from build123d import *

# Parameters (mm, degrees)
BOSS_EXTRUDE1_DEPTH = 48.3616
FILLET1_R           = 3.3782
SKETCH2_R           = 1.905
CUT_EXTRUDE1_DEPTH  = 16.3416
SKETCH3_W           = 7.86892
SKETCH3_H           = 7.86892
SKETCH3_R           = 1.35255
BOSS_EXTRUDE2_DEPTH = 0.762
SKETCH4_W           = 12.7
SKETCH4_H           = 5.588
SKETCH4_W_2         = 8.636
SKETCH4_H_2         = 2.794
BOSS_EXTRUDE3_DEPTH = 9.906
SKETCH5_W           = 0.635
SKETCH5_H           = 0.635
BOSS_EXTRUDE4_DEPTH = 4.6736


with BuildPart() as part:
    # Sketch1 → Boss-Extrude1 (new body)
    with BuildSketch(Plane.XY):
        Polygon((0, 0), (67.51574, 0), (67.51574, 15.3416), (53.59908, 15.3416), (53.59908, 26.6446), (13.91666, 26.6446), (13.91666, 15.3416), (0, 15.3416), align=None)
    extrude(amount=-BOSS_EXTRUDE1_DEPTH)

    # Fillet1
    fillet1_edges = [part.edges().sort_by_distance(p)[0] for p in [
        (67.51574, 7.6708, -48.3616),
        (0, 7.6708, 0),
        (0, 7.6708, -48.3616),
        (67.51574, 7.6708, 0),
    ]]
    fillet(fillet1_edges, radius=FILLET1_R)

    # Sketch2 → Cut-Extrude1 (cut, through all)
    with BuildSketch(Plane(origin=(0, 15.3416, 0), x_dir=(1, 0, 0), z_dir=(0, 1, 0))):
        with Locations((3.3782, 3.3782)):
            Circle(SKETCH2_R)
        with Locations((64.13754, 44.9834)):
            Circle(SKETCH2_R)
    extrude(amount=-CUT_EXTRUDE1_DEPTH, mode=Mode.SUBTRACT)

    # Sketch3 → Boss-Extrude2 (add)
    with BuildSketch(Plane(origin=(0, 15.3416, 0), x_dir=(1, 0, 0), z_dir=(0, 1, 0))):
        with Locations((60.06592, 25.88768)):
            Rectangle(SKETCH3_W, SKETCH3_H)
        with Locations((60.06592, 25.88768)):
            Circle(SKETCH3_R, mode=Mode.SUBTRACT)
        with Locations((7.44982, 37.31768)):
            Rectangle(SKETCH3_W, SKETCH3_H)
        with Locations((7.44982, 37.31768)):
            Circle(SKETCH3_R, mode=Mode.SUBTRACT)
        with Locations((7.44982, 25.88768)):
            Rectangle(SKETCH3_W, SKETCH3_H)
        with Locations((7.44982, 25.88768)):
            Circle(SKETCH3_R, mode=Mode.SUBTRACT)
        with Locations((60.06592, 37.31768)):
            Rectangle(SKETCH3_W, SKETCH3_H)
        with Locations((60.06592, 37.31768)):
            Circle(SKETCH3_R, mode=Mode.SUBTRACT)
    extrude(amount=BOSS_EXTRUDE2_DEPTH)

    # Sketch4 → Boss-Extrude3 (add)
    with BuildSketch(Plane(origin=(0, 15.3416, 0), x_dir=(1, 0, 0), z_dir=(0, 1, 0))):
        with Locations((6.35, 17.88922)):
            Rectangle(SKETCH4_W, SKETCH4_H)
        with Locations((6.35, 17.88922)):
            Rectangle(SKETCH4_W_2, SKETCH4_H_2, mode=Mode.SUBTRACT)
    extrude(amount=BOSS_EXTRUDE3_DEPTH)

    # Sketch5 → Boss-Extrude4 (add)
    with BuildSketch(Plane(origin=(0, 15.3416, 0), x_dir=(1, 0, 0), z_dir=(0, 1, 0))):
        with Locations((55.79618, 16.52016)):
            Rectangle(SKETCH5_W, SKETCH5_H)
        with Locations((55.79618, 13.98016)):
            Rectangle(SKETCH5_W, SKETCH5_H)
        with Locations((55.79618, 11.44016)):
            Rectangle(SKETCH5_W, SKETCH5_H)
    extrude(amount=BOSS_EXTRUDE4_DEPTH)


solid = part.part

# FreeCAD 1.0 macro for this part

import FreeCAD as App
import Part
import Sketcher

V = App.Vector
Q = App.Units.Quantity


def edges_at(feature, points):
    """Names of the edges that pass closest to the given points."""
    edges = feature.Shape.Edges
    near = lambda p: min(range(len(edges)), key=lambda i: edges[i].distToShape(Part.Vertex(*p))[0])
    return sorted({f"Edge{near(p) + 1}" for p in points})

doc = App.newDocument("Part")
body = doc.addObject("PartDesign::Body", "Body")

# Sketch on XY plane
sketch1 = body.newObject("Sketcher::SketchObject", "Sketch")
sketch1.AttachmentSupport = (doc.getObject("XY_Plane"), [""])
sketch1.MapMode = "FlatFace"
sketch1.addGeometry([
    Part.LineSegment(V(0, 0, 0), V(68, 0, 0)),  # 0
    Part.LineSegment(V(68, 0, 0), V(68, 15, 0)),  # 1
    Part.LineSegment(V(68, 15, 0), V(54, 15, 0)),  # 2
    Part.LineSegment(V(54, 15, 0), V(54, 27, 0)),  # 3
    Part.LineSegment(V(54, 27, 0), V(14, 27, 0)),  # 4
    Part.LineSegment(V(14, 27, 0), V(14, 15, 0)),  # 5
    Part.LineSegment(V(14, 15, 0), V(0, 15, 0)),  # 6
    Part.LineSegment(V(0, 15, 0), V(0, 0, 0)),  # 7
], False)
sketch1.addConstraint([
    Sketcher.Constraint("Coincident", 0, 2, 1, 1),
    Sketcher.Constraint("Coincident", 1, 2, 2, 1),
    Sketcher.Constraint("Coincident", 2, 2, 3, 1),
    Sketcher.Constraint("Coincident", 3, 2, 4, 1),
    Sketcher.Constraint("Coincident", 4, 2, 5, 1),
    Sketcher.Constraint("Coincident", 5, 2, 6, 1),
    Sketcher.Constraint("Coincident", 6, 2, 7, 1),
    Sketcher.Constraint("Coincident", 7, 2, 0, 1),
    Sketcher.Constraint("Horizontal", 0),
    Sketcher.Constraint("Vertical", 1),
    Sketcher.Constraint("Horizontal", 2),
    Sketcher.Constraint("Vertical", 3),
    Sketcher.Constraint("Horizontal", 4),
    Sketcher.Constraint("Vertical", 5),
    Sketcher.Constraint("Horizontal", 6),
    Sketcher.Constraint("Vertical", 7),
    Sketcher.Constraint("Coincident", 7, 2, -1, 1),
    Sketcher.Constraint("Horizontal", 2, 2, 5, 2),
    Sketcher.Constraint("Equal", 2, 6),
    Sketcher.Constraint("DistanceY", 1, 1, 1, 2, Q("0.604 in")),
    Sketcher.Constraint("DistanceY", 3, 1, 3, 2, Q("0.445 in")),
    Sketcher.Constraint("DistanceX", 0, 1, 0, 2, Q("2.6581 in")),
    Sketcher.Constraint("DistanceX", 2, 2, 2, 1, Q("0.5479 in")),
])
pad1 = body.newObject("PartDesign::Pad", "Pad")
pad1.Profile = sketch1
pad1.Length = Q("1.904 in")
pad1.Reversed = True
doc.recompute()

fillet = body.newObject("PartDesign::Fillet", "Fillet")
fillet.Base = (pad1, edges_at(pad1, [
    (67.516, 7.671, -48.362),
    (0, 7.671, 0),
    (0, 7.671, -48.362),
    (67.516, 7.671, 0),
]))
fillet.Radius = Q("0.133 in")

# Sketch on XZ plane
sketch2 = body.newObject("Sketcher::SketchObject", "Sketch001")
sketch2.AttachmentSupport = (doc.getObject("XZ_Plane"), [""])
sketch2.MapMode = "FlatFace"
sketch2.AttachmentOffset = App.Placement(V(0, 0, -0.604 * 25.4), App.Rotation())
sketch2.addGeometry([
    Part.Circle(V(3.4, -3.4, 0), V(0, 0, 1), 1.9),
    Part.Circle(V(64.1, -45, 0), V(0, 0, 1), 1.9),
], False)
sketch2.addConstraint([
    Sketcher.Constraint("Equal", 0, 1),
    Sketcher.Constraint("Diameter", 0, Q("0.15 in")),
    Sketcher.Constraint("DistanceX", -1, 1, 0, 3, Q("0.133 in")),
    Sketcher.Constraint("DistanceY", 0, 3, -1, 1, Q("0.133 in")),
    Sketcher.Constraint("DistanceY", 1, 3, -1, 1, Q("1.771 in")),
    Sketcher.Constraint("DistanceX", -1, 1, 1, 3, Q("2.5251 in")),
])
pocket1 = body.newObject("PartDesign::Pocket", "Pocket")
pocket1.Profile = sketch2
pocket1.Type = "ThroughAll"
pocket1.Reversed = True

# Sketch on XZ plane
sketch3 = body.newObject("Sketcher::SketchObject", "Sketch002")
sketch3.AttachmentSupport = (doc.getObject("XZ_Plane"), [""])
sketch3.MapMode = "FlatFace"
sketch3.AttachmentOffset = App.Placement(V(0, 0, -0.604 * 25.4), App.Rotation())
sketch3.addGeometry([
    Part.LineSegment(V(56.1, -29.8, 0), V(56.1, -22, 0)),  # 0
    Part.LineSegment(V(56.1, -22, 0), V(64, -22, 0)),  # 1
    Part.LineSegment(V(64, -22, 0), V(64, -29.8, 0)),  # 2
    Part.LineSegment(V(64, -29.8, 0), V(56.1, -29.8, 0)),  # 3
    Part.Circle(V(60.1, -25.9, 0), V(0, 0, 1), 1.4),  # 4
    Part.LineSegment(V(3.5, -41.3, 0), V(3.5, -33.4, 0)),  # 5
    Part.LineSegment(V(3.5, -33.4, 0), V(11.4, -33.4, 0)),  # 6
    Part.LineSegment(V(11.4, -33.4, 0), V(11.4, -41.3, 0)),  # 7
    Part.LineSegment(V(11.4, -41.3, 0), V(3.5, -41.3, 0)),  # 8
    Part.Circle(V(7.4, -37.3, 0), V(0, 0, 1), 1.4),  # 9
    Part.LineSegment(V(3.5, -29.8, 0), V(3.5, -22, 0)),  # 10
    Part.LineSegment(V(3.5, -22, 0), V(11.4, -22, 0)),  # 11
    Part.LineSegment(V(11.4, -22, 0), V(11.4, -29.8, 0)),  # 12
    Part.LineSegment(V(11.4, -29.8, 0), V(3.5, -29.8, 0)),  # 13
    Part.Circle(V(7.4, -25.9, 0), V(0, 0, 1), 1.4),  # 14
    Part.LineSegment(V(56.1, -41.3, 0), V(56.1, -33.4, 0)),  # 15
    Part.LineSegment(V(56.1, -33.4, 0), V(64, -33.4, 0)),  # 16
    Part.LineSegment(V(64, -33.4, 0), V(64, -41.3, 0)),  # 17
    Part.LineSegment(V(64, -41.3, 0), V(56.1, -41.3, 0)),  # 18
    Part.Circle(V(60.1, -37.3, 0), V(0, 0, 1), 1.4),  # 19
], False)
sketch3.addConstraint([
    Sketcher.Constraint("Coincident", 0, 2, 1, 1),
    Sketcher.Constraint("Coincident", 1, 2, 2, 1),
    Sketcher.Constraint("Coincident", 2, 2, 3, 1),
    Sketcher.Constraint("Coincident", 3, 2, 0, 1),
    Sketcher.Constraint("Coincident", 5, 2, 6, 1),
    Sketcher.Constraint("Coincident", 6, 2, 7, 1),
    Sketcher.Constraint("Coincident", 7, 2, 8, 1),
    Sketcher.Constraint("Coincident", 8, 2, 5, 1),
    Sketcher.Constraint("Coincident", 10, 2, 11, 1),
    Sketcher.Constraint("Coincident", 11, 2, 12, 1),
    Sketcher.Constraint("Coincident", 12, 2, 13, 1),
    Sketcher.Constraint("Coincident", 13, 2, 10, 1),
    Sketcher.Constraint("Coincident", 15, 2, 16, 1),
    Sketcher.Constraint("Coincident", 16, 2, 17, 1),
    Sketcher.Constraint("Coincident", 17, 2, 18, 1),
    Sketcher.Constraint("Coincident", 18, 2, 15, 1),
    Sketcher.Constraint("Vertical", 0),
    Sketcher.Constraint("Horizontal", 1),
    Sketcher.Constraint("Vertical", 2),
    Sketcher.Constraint("Horizontal", 3),
    Sketcher.Constraint("Vertical", 5),
    Sketcher.Constraint("Horizontal", 6),
    Sketcher.Constraint("Vertical", 7),
    Sketcher.Constraint("Horizontal", 8),
    Sketcher.Constraint("Vertical", 10),
    Sketcher.Constraint("Horizontal", 11),
    Sketcher.Constraint("Vertical", 12),
    Sketcher.Constraint("Horizontal", 13),
    Sketcher.Constraint("Vertical", 15),
    Sketcher.Constraint("Horizontal", 16),
    Sketcher.Constraint("Vertical", 17),
    Sketcher.Constraint("Horizontal", 18),
    Sketcher.Constraint("Equal", 4, 9),
    Sketcher.Constraint("Equal", 9, 14),
    Sketcher.Constraint("Equal", 14, 19),
    Sketcher.Constraint("Horizontal", 4, 3, 14, 3),
    Sketcher.Constraint("Horizontal", 9, 3, 19, 3),
    Sketcher.Constraint("Horizontal", 1, 2, 10, 2),
    Sketcher.Constraint("Horizontal", 3, 2, 12, 2),
    Sketcher.Constraint("Horizontal", 6, 2, 15, 2),
    Sketcher.Constraint("Horizontal", 8, 2, 17, 2),
    Sketcher.Constraint("Vertical", 9, 3, 14, 3),
    Sketcher.Constraint("Vertical", 4, 3, 19, 3),
    Sketcher.Constraint("Vertical", 8, 2, 10, 2),
    Sketcher.Constraint("Vertical", 7, 2, 11, 2),
    Sketcher.Constraint("Vertical", 3, 2, 15, 2),
    Sketcher.Constraint("Vertical", 2, 2, 16, 2),
    Sketcher.Constraint("Equal", 3, 6),
    Sketcher.Constraint("Equal", 18, 0),
    Sketcher.Constraint("Equal", 2, 5),
    Sketcher.Constraint("Diameter", 4, Q("0.1065 in")),
    Sketcher.Constraint("DistanceY", 9, 3, 4, 3, Q("0.45 in")),
    Sketcher.Constraint("DistanceY", 5, 2, 0, 2, Q("0.45 in")),
    Sketcher.Constraint("DistanceX", 1, 1, 1, 2, Q("0.3098 in")),
    Sketcher.Constraint("DistanceX", -1, 1, 4, 3, Q("2.3648 in")),
    Sketcher.Constraint("DistanceY", 4, 3, -1, 1, Q("1.0192 in")),
    Sketcher.Constraint("DistanceX", -1, 1, 9, 3, Q("0.2933 in")),
    Sketcher.Constraint("DistanceX", -1, 1, 0, 2, Q("2.2099 in")),
    Sketcher.Constraint("DistanceY", 0, 2, -1, 1, Q("0.8643 in")),
    Sketcher.Constraint("DistanceX", -1, 1, 5, 2, Q("0.1384 in")),
])
pad2 = body.newObject("PartDesign::Pad", "Pad001")
pad2.Profile = sketch3
pad2.Length = Q("0.03 in")
pad2.Reversed = True

# Sketch on XZ plane
sketch4 = body.newObject("Sketcher::SketchObject", "Sketch003")
sketch4.AttachmentSupport = (doc.getObject("XZ_Plane"), [""])
sketch4.MapMode = "FlatFace"
sketch4.AttachmentOffset = App.Placement(V(0, 0, -0.604 * 25.4), App.Rotation())
sketch4.addGeometry([
    Part.LineSegment(V(0, -20.7, 0), V(0, -15.1, 0)),  # 0
    Part.LineSegment(V(0, -15.1, 0), V(12.7, -15.1, 0)),  # 1
    Part.LineSegment(V(12.7, -15.1, 0), V(12.7, -20.7, 0)),  # 2
    Part.LineSegment(V(12.7, -20.7, 0), V(0, -20.7, 0)),  # 3
    Part.LineSegment(V(10.7, -16.5, 0), V(2, -16.5, 0)),  # 4
    Part.LineSegment(V(2, -16.5, 0), V(2, -19.3, 0)),  # 5
    Part.LineSegment(V(2, -19.3, 0), V(10.7, -19.3, 0)),  # 6
    Part.LineSegment(V(10.7, -19.3, 0), V(10.7, -16.5, 0)),  # 7
], False)
sketch4.addConstraint([
    Sketcher.Constraint("Coincident", 0, 2, 1, 1),
    Sketcher.Constraint("Coincident", 1, 2, 2, 1),
    Sketcher.Constraint("Coincident", 2, 2, 3, 1),
    Sketcher.Constraint("Coincident", 3, 2, 0, 1),
    Sketcher.Constraint("Coincident", 4, 2, 5, 1),
    Sketcher.Constraint("Coincident", 5, 2, 6, 1),
    Sketcher.Constraint("Coincident", 6, 2, 7, 1),
    Sketcher.Constraint("Coincident", 7, 2, 4, 1),
    Sketcher.Constraint("Vertical", 0),
    Sketcher.Constraint("Horizontal", 1),
    Sketcher.Constraint("Vertical", 2),
    Sketcher.Constraint("Horizontal", 3),
    Sketcher.Constraint("Horizontal", 4),
    Sketcher.Constraint("Vertical", 5),
    Sketcher.Constraint("Horizontal", 6),
    Sketcher.Constraint("Vertical", 7),
    Sketcher.Constraint("PointOnObject", 0, 2, -2),
    Sketcher.Constraint("DistanceX", 1, 1, 1, 2, Q("0.5 in")),
    Sketcher.Constraint("DistanceX", 4, 2, 4, 1, Q("0.34 in")),
    Sketcher.Constraint("DistanceY", 0, 1, 0, 2, Q("0.22 in")),
    Sketcher.Constraint("DistanceY", 5, 2, 5, 1, Q("0.11 in")),
    Sketcher.Constraint("DistanceX", -1, 1, 4, 2, Q("0.08 in")),
    Sketcher.Constraint("DistanceY", 4, 2, 0, 2, Q("0.055 in")),
    Sketcher.Constraint("DistanceY", 0, 2, -1, 1, Q("0.5943 in")),
])
pad3 = body.newObject("PartDesign::Pad", "Pad002")
pad3.Profile = sketch4
pad3.Length = Q("0.39 in")
pad3.Reversed = True

# Sketch on XZ plane
sketch5 = body.newObject("Sketcher::SketchObject", "Sketch004")
sketch5.AttachmentSupport = (doc.getObject("XZ_Plane"), [""])
sketch5.MapMode = "FlatFace"
sketch5.AttachmentOffset = App.Placement(V(0, 0, -0.604 * 25.4), App.Rotation())
sketch5.addGeometry([
    Part.LineSegment(V(55.5, -16.8, 0), V(55.5, -16.2, 0)),  # 0
    Part.LineSegment(V(55.5, -16.2, 0), V(56.1, -16.2, 0)),  # 1
    Part.LineSegment(V(56.1, -16.2, 0), V(56.1, -16.8, 0)),  # 2
    Part.LineSegment(V(56.1, -16.8, 0), V(55.5, -16.8, 0)),  # 3
    Part.LineSegment(V(55.5, -14.3, 0), V(55.5, -13.7, 0)),  # 4
    Part.LineSegment(V(55.5, -13.7, 0), V(56.1, -13.7, 0)),  # 5
    Part.LineSegment(V(56.1, -13.7, 0), V(56.1, -14.3, 0)),  # 6
    Part.LineSegment(V(56.1, -14.3, 0), V(55.5, -14.3, 0)),  # 7
    Part.LineSegment(V(55.5, -11.8, 0), V(55.5, -11.1, 0)),  # 8
    Part.LineSegment(V(55.5, -11.1, 0), V(56.1, -11.1, 0)),  # 9
    Part.LineSegment(V(56.1, -11.1, 0), V(56.1, -11.8, 0)),  # 10
    Part.LineSegment(V(56.1, -11.8, 0), V(55.5, -11.8, 0)),  # 11
], False)
sketch5.addConstraint([
    Sketcher.Constraint("Coincident", 0, 2, 1, 1),
    Sketcher.Constraint("Coincident", 1, 2, 2, 1),
    Sketcher.Constraint("Coincident", 2, 2, 3, 1),
    Sketcher.Constraint("Coincident", 3, 2, 0, 1),
    Sketcher.Constraint("Coincident", 4, 2, 5, 1),
    Sketcher.Constraint("Coincident", 5, 2, 6, 1),
    Sketcher.Constraint("Coincident", 6, 2, 7, 1),
    Sketcher.Constraint("Coincident", 7, 2, 4, 1),
    Sketcher.Constraint("Coincident", 8, 2, 9, 1),
    Sketcher.Constraint("Coincident", 9, 2, 10, 1),
    Sketcher.Constraint("Coincident", 10, 2, 11, 1),
    Sketcher.Constraint("Coincident", 11, 2, 8, 1),
    Sketcher.Constraint("Vertical", 0),
    Sketcher.Constraint("Horizontal", 1),
    Sketcher.Constraint("Vertical", 2),
    Sketcher.Constraint("Horizontal", 3),
    Sketcher.Constraint("Vertical", 4),
    Sketcher.Constraint("Horizontal", 5),
    Sketcher.Constraint("Vertical", 6),
    Sketcher.Constraint("Horizontal", 7),
    Sketcher.Constraint("Vertical", 8),
    Sketcher.Constraint("Horizontal", 9),
    Sketcher.Constraint("Vertical", 10),
    Sketcher.Constraint("Horizontal", 11),
    Sketcher.Constraint("Vertical", 3, 2, 4, 2),
    Sketcher.Constraint("Vertical", 2, 2, 5, 2),
    Sketcher.Constraint("Vertical", 7, 2, 8, 2),
    Sketcher.Constraint("Vertical", 6, 2, 9, 2),
    Sketcher.Constraint("Equal", 11, 0),
    Sketcher.Constraint("Equal", 2, 4),
    Sketcher.Constraint("Equal", 6, 8),
    Sketcher.Constraint("DistanceY", 0, 2, 4, 2, Q("0.1 in")),
    Sketcher.Constraint("DistanceY", 4, 2, 8, 2, Q("0.1 in")),
    Sketcher.Constraint("DistanceX", 1, 1, 1, 2, Q("0.025 in")),
    Sketcher.Constraint("DistanceX", -1, 1, 0, 2, Q("2.1842 in")),
    Sketcher.Constraint("DistanceY", 0, 2, -1, 1, Q("0.6379 in")),
])
pad4 = body.newObject("PartDesign::Pad", "Pad003")
pad4.Profile = sketch5
pad4.Length = Q("0.184 in")
pad4.Reversed = True

doc.recompute()
